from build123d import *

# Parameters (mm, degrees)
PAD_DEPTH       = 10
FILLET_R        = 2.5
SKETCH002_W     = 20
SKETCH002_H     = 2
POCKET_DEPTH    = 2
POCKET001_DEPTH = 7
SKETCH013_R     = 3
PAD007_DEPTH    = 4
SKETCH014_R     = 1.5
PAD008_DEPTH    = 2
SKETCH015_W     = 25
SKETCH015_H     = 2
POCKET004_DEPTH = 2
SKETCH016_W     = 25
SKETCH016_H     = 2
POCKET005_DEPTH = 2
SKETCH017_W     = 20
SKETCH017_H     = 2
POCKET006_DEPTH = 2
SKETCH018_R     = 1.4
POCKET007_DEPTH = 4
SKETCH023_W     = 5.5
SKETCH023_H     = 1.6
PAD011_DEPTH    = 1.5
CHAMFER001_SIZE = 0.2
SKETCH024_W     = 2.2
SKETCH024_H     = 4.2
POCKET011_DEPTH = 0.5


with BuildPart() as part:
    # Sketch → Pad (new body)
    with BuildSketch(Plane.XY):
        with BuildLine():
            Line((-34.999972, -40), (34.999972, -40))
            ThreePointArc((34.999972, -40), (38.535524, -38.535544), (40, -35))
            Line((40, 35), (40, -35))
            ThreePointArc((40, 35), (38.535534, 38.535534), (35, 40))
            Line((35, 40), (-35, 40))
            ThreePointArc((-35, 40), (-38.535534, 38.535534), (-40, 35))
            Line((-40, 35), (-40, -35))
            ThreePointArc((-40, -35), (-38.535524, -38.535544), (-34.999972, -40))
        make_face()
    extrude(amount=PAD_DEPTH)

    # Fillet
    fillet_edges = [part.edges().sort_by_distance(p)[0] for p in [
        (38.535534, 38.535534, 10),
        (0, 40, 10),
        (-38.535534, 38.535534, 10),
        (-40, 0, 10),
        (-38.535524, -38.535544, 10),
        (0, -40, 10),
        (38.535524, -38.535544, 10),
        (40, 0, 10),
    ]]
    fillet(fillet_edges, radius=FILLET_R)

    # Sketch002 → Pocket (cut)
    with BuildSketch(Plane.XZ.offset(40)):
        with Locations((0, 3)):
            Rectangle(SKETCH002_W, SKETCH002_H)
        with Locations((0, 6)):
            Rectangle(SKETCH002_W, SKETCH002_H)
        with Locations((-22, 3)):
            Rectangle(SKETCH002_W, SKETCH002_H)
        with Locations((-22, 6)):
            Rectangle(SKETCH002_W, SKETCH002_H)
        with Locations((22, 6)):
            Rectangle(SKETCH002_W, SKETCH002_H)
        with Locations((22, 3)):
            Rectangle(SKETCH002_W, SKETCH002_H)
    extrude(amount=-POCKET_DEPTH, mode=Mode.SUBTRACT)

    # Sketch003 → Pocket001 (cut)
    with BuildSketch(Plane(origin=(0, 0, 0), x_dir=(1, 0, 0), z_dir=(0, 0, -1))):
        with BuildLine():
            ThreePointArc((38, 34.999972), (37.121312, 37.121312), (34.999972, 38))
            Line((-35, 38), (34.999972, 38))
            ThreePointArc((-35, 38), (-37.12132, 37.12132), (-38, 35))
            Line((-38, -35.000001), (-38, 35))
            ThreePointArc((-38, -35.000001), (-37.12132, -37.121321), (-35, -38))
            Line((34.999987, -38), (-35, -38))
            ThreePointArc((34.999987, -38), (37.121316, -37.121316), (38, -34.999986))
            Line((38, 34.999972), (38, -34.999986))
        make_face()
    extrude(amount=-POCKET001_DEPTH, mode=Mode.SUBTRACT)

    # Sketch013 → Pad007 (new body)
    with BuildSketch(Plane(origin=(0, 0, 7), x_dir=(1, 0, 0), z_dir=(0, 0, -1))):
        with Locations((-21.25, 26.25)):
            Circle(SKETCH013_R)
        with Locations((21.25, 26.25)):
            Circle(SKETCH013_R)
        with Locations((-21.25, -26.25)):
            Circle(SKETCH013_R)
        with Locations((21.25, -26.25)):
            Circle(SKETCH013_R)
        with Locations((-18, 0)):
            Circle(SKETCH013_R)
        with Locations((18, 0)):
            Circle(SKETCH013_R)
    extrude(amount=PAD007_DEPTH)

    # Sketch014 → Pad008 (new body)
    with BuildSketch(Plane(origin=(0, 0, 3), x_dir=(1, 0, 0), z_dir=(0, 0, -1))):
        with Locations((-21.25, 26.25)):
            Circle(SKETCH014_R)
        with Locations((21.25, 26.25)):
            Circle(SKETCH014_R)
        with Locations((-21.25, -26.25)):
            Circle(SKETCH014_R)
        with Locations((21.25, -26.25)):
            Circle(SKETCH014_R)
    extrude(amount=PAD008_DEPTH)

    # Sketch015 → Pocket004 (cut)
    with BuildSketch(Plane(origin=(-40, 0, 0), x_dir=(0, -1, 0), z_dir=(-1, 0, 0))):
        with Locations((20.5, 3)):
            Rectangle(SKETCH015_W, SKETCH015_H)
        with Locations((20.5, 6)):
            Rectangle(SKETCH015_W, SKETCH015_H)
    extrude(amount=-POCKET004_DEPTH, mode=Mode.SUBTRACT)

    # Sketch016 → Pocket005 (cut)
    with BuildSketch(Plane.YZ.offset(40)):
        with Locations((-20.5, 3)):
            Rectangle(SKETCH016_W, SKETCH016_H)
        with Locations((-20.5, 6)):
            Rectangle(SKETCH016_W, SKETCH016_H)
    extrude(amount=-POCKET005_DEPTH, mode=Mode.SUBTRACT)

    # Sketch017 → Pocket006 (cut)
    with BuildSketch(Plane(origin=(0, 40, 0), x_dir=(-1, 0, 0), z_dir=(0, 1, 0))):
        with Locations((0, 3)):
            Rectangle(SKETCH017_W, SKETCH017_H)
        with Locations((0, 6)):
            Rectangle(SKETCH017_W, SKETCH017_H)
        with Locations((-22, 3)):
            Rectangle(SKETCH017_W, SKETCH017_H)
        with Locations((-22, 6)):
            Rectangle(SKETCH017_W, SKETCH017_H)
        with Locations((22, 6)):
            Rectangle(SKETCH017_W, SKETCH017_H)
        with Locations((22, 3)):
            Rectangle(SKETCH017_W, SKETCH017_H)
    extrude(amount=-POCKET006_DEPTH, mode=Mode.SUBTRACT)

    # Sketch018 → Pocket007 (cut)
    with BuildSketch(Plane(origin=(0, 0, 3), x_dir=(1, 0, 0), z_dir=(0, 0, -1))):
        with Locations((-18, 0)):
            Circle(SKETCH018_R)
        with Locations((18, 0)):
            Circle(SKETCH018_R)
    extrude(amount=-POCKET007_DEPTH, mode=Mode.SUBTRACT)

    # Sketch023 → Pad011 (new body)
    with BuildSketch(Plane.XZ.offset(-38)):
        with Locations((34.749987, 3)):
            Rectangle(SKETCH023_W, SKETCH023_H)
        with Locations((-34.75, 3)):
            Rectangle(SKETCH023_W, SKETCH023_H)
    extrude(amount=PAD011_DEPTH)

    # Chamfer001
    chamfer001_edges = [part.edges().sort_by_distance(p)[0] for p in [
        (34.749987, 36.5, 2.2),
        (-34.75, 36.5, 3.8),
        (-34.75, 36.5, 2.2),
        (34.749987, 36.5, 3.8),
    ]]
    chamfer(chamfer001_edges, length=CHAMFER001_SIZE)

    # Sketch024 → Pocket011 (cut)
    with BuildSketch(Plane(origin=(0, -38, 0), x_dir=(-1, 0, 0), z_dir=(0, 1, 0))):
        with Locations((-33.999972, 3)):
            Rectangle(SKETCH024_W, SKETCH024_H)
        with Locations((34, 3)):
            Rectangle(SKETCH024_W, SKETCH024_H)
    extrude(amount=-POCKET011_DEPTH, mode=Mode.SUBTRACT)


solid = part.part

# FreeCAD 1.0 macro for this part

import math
import FreeCAD as App
import Part
import Sketcher

V = App.Vector
Q = App.Units.Quantity


def edges_at(feature, points):
    """Names of the edges that pass closest to the given points."""
    edges = feature.Shape.Edges
    near = lambda p: min(range(len(edges)), key=lambda i: edges[i].distToShape(Part.Vertex(*p))[0])
    return sorted({f"Edge{near(p) + 1}" for p in points})


def add_polygon(sketch, points):
    """Adds a closed chain of lines whose ends are joined by coincident constraints."""
    first, n = sketch.GeometryCount, len(points)
    for a, b in zip(points, points[1:] + points[:1]):
        sketch.addGeometry(Part.LineSegment(App.Vector(*a, 0), App.Vector(*b, 0)), False)
    for i in range(n):
        sketch.addConstraint(Sketcher.Constraint("Coincident", first + i, 2, first + (i + 1) % n, 1))

doc = App.newDocument("Part")
body = doc.addObject("PartDesign::Body", "Body")

# Sketch on XY plane
sketch1 = body.newObject("Sketcher::SketchObject", "Sketch")
sketch1.AttachmentSupport = (doc.getObject("XY_Plane"), [""])
sketch1.MapMode = "FlatFace"
sketch1.addGeometry([
    Part.LineSegment(V(-35, -40, 0), V(35, -40, 0)),  # 0
    Part.ArcOfCircle(Part.Circle(V(35, -35, 0), V(0, 0, 1), 5), math.radians(-90), math.radians(0)),  # 1
    Part.LineSegment(V(40, -35, 0), V(40, 35, 0)),  # 2
    Part.ArcOfCircle(Part.Circle(V(35, 35, 0), V(0, 0, 1), 5), math.radians(0), math.radians(90)),  # 3
    Part.LineSegment(V(35, 40, 0), V(-35, 40, 0)),  # 4
    Part.ArcOfCircle(Part.Circle(V(-35, 35, 0), V(0, 0, 1), 5), math.radians(90), math.radians(180)),  # 5
    Part.LineSegment(V(-40, 35, 0), V(-40, -35, 0)),  # 6
    Part.ArcOfCircle(Part.Circle(V(-35, -35, 0), V(0, 0, 1), 5), math.radians(180), math.radians(270)),  # 7
], False)
sketch1.addConstraint([
    Sketcher.Constraint("Coincident", 0, 2, 1, 1),
    Sketcher.Constraint("Tangent", 1, 2, 2, 1),
    Sketcher.Constraint("Tangent", 2, 2, 3, 1),
    Sketcher.Constraint("Tangent", 3, 2, 4, 1),
    Sketcher.Constraint("Tangent", 4, 2, 5, 1),
    Sketcher.Constraint("Tangent", 5, 2, 6, 1),
    Sketcher.Constraint("Tangent", 6, 2, 7, 1),
    Sketcher.Constraint("Coincident", 7, 2, 0, 1),
    Sketcher.Constraint("Horizontal", 0),
    Sketcher.Constraint("Vertical", 2),
    Sketcher.Constraint("Horizontal", 4),
    Sketcher.Constraint("Vertical", 6),
    Sketcher.Constraint("Equal", 1, 3),
    Sketcher.Constraint("Equal", 3, 5),
    Sketcher.Constraint("Equal", 5, 7),
    Sketcher.Constraint("Symmetric", 1, 3, 5, 3, -1, 1),
    Sketcher.Constraint("Equal", 4, 2),
    Sketcher.Constraint("Radius", 1, Q("5 mm")),
    Sketcher.Constraint("DistanceX", 4, 2, 4, 1, Q("70 mm")),
    Sketcher.Constraint("DistanceX", 0, 1, 0, 2, Q("69.999944 mm")),
    Sketcher.Constraint("DistanceX", 0, 2, 2, 2, Q("5.000028 mm")),
])
pad1 = body.newObject("PartDesign::Pad", "Pad")
pad1.Profile = sketch1
pad1.Length = 10
doc.recompute()

fillet = body.newObject("PartDesign::Fillet", "Fillet")
fillet.Base = (pad1, edges_at(pad1, [
    (38.536, 38.536, 10),
    (0, 40, 10),
    (-38.536, 38.536, 10),
    (-40, 0, 10),
    (-38.536, -38.536, 10),
    (0, -40, 10),
    (38.536, -38.536, 10),
    (40, 0, 10),
]))
fillet.Radius = 2.5

# Sketch on XZ plane
sketch2 = body.newObject("Sketcher::SketchObject", "Sketch001")
sketch2.AttachmentSupport = (doc.getObject("XZ_Plane"), [""])
sketch2.MapMode = "FlatFace"
sketch2.AttachmentOffset = App.Placement(V(0, 0, 40), App.Rotation())
add_polygon(sketch2, [(-10, 4), (-10, 2), (10, 2), (10, 4)])  # lines 0-3
add_polygon(sketch2, [(-10, 7), (-10, 5), (10, 5), (10, 7)])  # lines 4-7
add_polygon(sketch2, [(-32, 4), (-32, 2), (-12, 2), (-12, 4)])  # lines 8-11
add_polygon(sketch2, [(-32, 7), (-32, 5), (-12, 5), (-12, 7)])  # lines 12-15
add_polygon(sketch2, [(12, 7), (12, 5), (32, 5), (32, 7)])  # lines 16-19
add_polygon(sketch2, [(12, 4), (12, 2), (32, 2), (32, 4)])  # lines 20-23
sketch2.addConstraint([
    Sketcher.Constraint("Vertical", 0),
    Sketcher.Constraint("Horizontal", 1),
    Sketcher.Constraint("Vertical", 2),
    Sketcher.Constraint("Horizontal", 3),
    Sketcher.Constraint("Vertical", 4),
    Sketcher.Constraint("Horizontal", 5),
    Sketcher.Constraint("Vertical", 6),
    Sketcher.Constraint("Horizontal", 7),
    Sketcher.Constraint("Vertical", 8),
    Sketcher.Constraint("Horizontal", 9),
    Sketcher.Constraint("Vertical", 10),
    Sketcher.Constraint("Horizontal", 11),
    Sketcher.Constraint("Vertical", 12),
    Sketcher.Constraint("Horizontal", 13),
    Sketcher.Constraint("Vertical", 14),
    Sketcher.Constraint("Horizontal", 15),
    Sketcher.Constraint("Vertical", 16),
    Sketcher.Constraint("Horizontal", 17),
    Sketcher.Constraint("Vertical", 18),
    Sketcher.Constraint("Horizontal", 19),
    Sketcher.Constraint("Vertical", 20),
    Sketcher.Constraint("Horizontal", 21),
    Sketcher.Constraint("Vertical", 22),
    Sketcher.Constraint("Horizontal", 23),
    Sketcher.Constraint("Symmetric", 13, 2, 16, 2, -2),
    Sketcher.Constraint("Symmetric", 15, 2, 18, 2, -2),
    Sketcher.Constraint("Symmetric", 9, 2, 20, 2, -2),
    Sketcher.Constraint("Symmetric", 11, 2, 22, 2, -2),
    Sketcher.Constraint("Horizontal", 1, 2, 8, 2),
    Sketcher.Constraint("Horizontal", 3, 2, 10, 2),
    Sketcher.Constraint("Horizontal", 5, 2, 12, 2),
    Sketcher.Constraint("Horizontal", 7, 2, 14, 2),
    Sketcher.Constraint("Vertical", 3, 2, 4, 2),
    Sketcher.Constraint("Vertical", 2, 2, 5, 2),
    Sketcher.Constraint("Vertical", 11, 2, 12, 2),
    Sketcher.Constraint("Vertical", 10, 2, 13, 2),
    Sketcher.Constraint("Equal", 7, 9),
    Sketcher.Constraint("Equal", 2, 4),
    Sketcher.Constraint("DistanceX", 1, 1, 1, 2, Q("20 mm")),
    Sketcher.Constraint("DistanceY", 0, 2, 0, 1, Q("2 mm")),
    Sketcher.Constraint("DistanceX", 0, 2, -1, 1, Q("10 mm")),
    Sketcher.Constraint("DistanceY", -1, 1, 0, 2, Q("2 mm")),
    Sketcher.Constraint("DistanceY", -1, 1, 4, 2, Q("5 mm")),
    Sketcher.Constraint("DistanceX", 8, 2, -1, 1, Q("32 mm")),
])
pocket1 = body.newObject("PartDesign::Pocket", "Pocket")
pocket1.Profile = sketch2
pocket1.Length = 2

# Sketch on XY plane
sketch3 = body.newObject("Sketcher::SketchObject", "Sketch002")
sketch3.AttachmentSupport = (doc.getObject("XY_Plane"), [""])
sketch3.MapMode = "FlatFace"
sketch3.addGeometry([
    Part.ArcOfCircle(Part.Circle(V(35, -35, 0), V(0, 0, 1), 3), math.radians(-90), math.radians(0)),  # 0
    Part.LineSegment(V(35, -38, 0), V(-35, -38, 0)),  # 1
    Part.ArcOfCircle(Part.Circle(V(-35, -35, 0), V(0, 0, 1), 3), math.radians(-180), math.radians(-90)),  # 2
    Part.LineSegment(V(-38, -35, 0), V(-38, 35, 0)),  # 3
    Part.ArcOfCircle(Part.Circle(V(-35, 35, 0), V(0, 0, 1), 3), math.radians(90), math.radians(180)),  # 4
    Part.LineSegment(V(-35, 38, 0), V(35, 38, 0)),  # 5
    Part.ArcOfCircle(Part.Circle(V(35, 35, 0), V(0, 0, 1), 3), math.radians(0), math.radians(90)),  # 6
    Part.LineSegment(V(38, 35, 0), V(38, -35, 0)),  # 7
], False)
sketch3.addConstraint([
    Sketcher.Constraint("Tangent", 0, 1, 1, 1),
    Sketcher.Constraint("Tangent", 1, 2, 2, 2),
    Sketcher.Constraint("Tangent", 2, 1, 3, 1),
    Sketcher.Constraint("Tangent", 3, 2, 4, 2),
    Sketcher.Constraint("Tangent", 4, 1, 5, 1),
    Sketcher.Constraint("Tangent", 5, 2, 6, 2),
    Sketcher.Constraint("Tangent", 6, 1, 7, 1),
    Sketcher.Constraint("Tangent", 7, 2, 0, 2),
    Sketcher.Constraint("Horizontal", 1),
    Sketcher.Constraint("Vertical", 3),
    Sketcher.Constraint("Horizontal", 5),
    Sketcher.Constraint("Vertical", 7),
    Sketcher.Constraint("Equal", 2, 4),
    Sketcher.Constraint("Radius", 2, Q("3.000001 mm")),
    Sketcher.Constraint("DistanceY", 3, 1, 3, 2, Q("70.000001 mm")),
    Sketcher.Constraint("DistanceX", 2, 3, -1, 1, Q("34.999999 mm")),
    Sketcher.Constraint("DistanceY", 2, 3, -1, 1, Q("34.999999 mm")),
    Sketcher.Constraint("DistanceX", -1, 1, 6, 1, Q("38 mm")),
    Sketcher.Constraint("Radius", 0, Q("3.000028 mm")),
    Sketcher.Constraint("Radius", 6, Q("3.000015 mm")),
])
pocket2 = body.newObject("PartDesign::Pocket", "Pocket001")
pocket2.Profile = sketch3
pocket2.Length = 7
pocket2.Reversed = True

# Sketch on XY plane
sketch4 = body.newObject("Sketcher::SketchObject", "Sketch003")
sketch4.AttachmentSupport = (doc.getObject("XY_Plane"), [""])
sketch4.MapMode = "FlatFace"
sketch4.AttachmentOffset = App.Placement(V(0, 0, 7), App.Rotation())
sketch4.addGeometry([
    Part.Circle(V(-21.2, -26.2, 0), V(0, 0, 1), 3),  # 0
    Part.Circle(V(21.2, -26.2, 0), V(0, 0, 1), 3),  # 1
    Part.Circle(V(-21.2, 26.2, 0), V(0, 0, 1), 3),  # 2
    Part.Circle(V(21.2, 26.2, 0), V(0, 0, 1), 3),  # 3
    Part.Circle(V(-18, 0, 0), V(0, 0, 1), 3),  # 4
    Part.Circle(V(18, 0, 0), V(0, 0, 1), 3),  # 5
], False)
sketch4.addConstraint([
    Sketcher.Constraint("Equal", 0, 1),
    Sketcher.Constraint("Equal", 1, 2),
    Sketcher.Constraint("Equal", 2, 3),
    Sketcher.Constraint("Equal", 3, 4),
    Sketcher.Constraint("Equal", 4, 5),
    Sketcher.Constraint("Symmetric", 1, 3, 2, 3, -1, 1),
    Sketcher.Constraint("Symmetric", 0, 3, 3, 3, -1, 1),
    Sketcher.Constraint("Symmetric", 4, 3, 5, 3, -1, 1),
    Sketcher.Constraint("Symmetric", 0, 3, 1, 3, -2),
    Sketcher.Constraint("PointOnObject", 4, 3, -1),
    Sketcher.Constraint("Diameter", 0, Q("6 mm")),
    Sketcher.Constraint("DistanceX", 4, 3, -1, 1, Q("18 mm")),
    Sketcher.Constraint("DistanceX", 0, 3, 1, 3, Q("42.5 mm")),
    Sketcher.Constraint("DistanceY", 0, 3, 2, 3, Q("52.5 mm")),
])
pad2 = body.newObject("PartDesign::Pad", "Pad001")
pad2.Profile = sketch4
pad2.Length = 4
pad2.Reversed = True

# Sketch on XY plane
sketch5 = body.newObject("Sketcher::SketchObject", "Sketch004")
sketch5.AttachmentSupport = (doc.getObject("XY_Plane"), [""])
sketch5.MapMode = "FlatFace"
sketch5.AttachmentOffset = App.Placement(V(0, 0, 3), App.Rotation())
sketch5.addGeometry([
    Part.Circle(V(-21.2, -26.2, 0), V(0, 0, 1), 1.5),
    Part.Circle(V(21.2, -26.2, 0), V(0, 0, 1), 1.5),
    Part.Circle(V(-21.2, 26.2, 0), V(0, 0, 1), 1.5),
    Part.Circle(V(21.2, 26.2, 0), V(0, 0, 1), 1.5),
], False)
sketch5.addConstraint([
    Sketcher.Constraint("Equal", 0, 1),
    Sketcher.Constraint("Equal", 1, 2),
    Sketcher.Constraint("Equal", 2, 3),
    Sketcher.Constraint("Symmetric", 1, 3, 2, 3, -1, 1),
    Sketcher.Constraint("Symmetric", 0, 3, 3, 3, -1, 1),
    Sketcher.Constraint("Symmetric", 0, 3, 1, 3, -2),
    Sketcher.Constraint("Diameter", 0, Q("3 mm")),
    Sketcher.Constraint("DistanceX", 0, 3, 1, 3, Q("42.5 mm")),
    Sketcher.Constraint("DistanceY", 0, 3, 2, 3, Q("52.5 mm")),
])
pad3 = body.newObject("PartDesign::Pad", "Pad002")
pad3.Profile = sketch5
pad3.Length = 2
pad3.Reversed = True

# Sketch on YZ plane
sketch6 = body.newObject("Sketcher::SketchObject", "Sketch005")
sketch6.AttachmentSupport = (doc.getObject("YZ_Plane"), [""])
sketch6.MapMode = "FlatFace"
sketch6.AttachmentOffset = App.Placement(V(0, 0, -40), App.Rotation())
add_polygon(sketch6, [(-8, 4), (-8, 2), (-33, 2), (-33, 4)])  # lines 0-3
add_polygon(sketch6, [(-8, 7), (-8, 5), (-33, 5), (-33, 7)])  # lines 4-7
sketch6.addConstraint([
    Sketcher.Constraint("Vertical", 0),
    Sketcher.Constraint("Horizontal", 1),
    Sketcher.Constraint("Vertical", 2),
    Sketcher.Constraint("Horizontal", 3),
    Sketcher.Constraint("Vertical", 4),
    Sketcher.Constraint("Horizontal", 5),
    Sketcher.Constraint("Vertical", 6),
    Sketcher.Constraint("Horizontal", 7),
    Sketcher.Constraint("Vertical", 3, 2, 4, 2),
    Sketcher.Constraint("Vertical", 2, 2, 5, 2),
    Sketcher.Constraint("Equal", 2, 4),
    Sketcher.Constraint("DistanceX", 1, 2, 1, 1, Q("25 mm")),
    Sketcher.Constraint("DistanceY", 0, 2, 0, 1, Q("2 mm")),
    Sketcher.Constraint("DistanceX", 0, 2, -1, 1, Q("8 mm")),
    Sketcher.Constraint("DistanceY", -1, 1, 0, 2, Q("2 mm")),
    Sketcher.Constraint("DistanceY", -1, 1, 4, 2, Q("5 mm")),
])
pocket3 = body.newObject("PartDesign::Pocket", "Pocket002")
pocket3.Profile = sketch6
pocket3.Length = 2
pocket3.Reversed = True

# Sketch on YZ plane
sketch7 = body.newObject("Sketcher::SketchObject", "Sketch006")
sketch7.AttachmentSupport = (doc.getObject("YZ_Plane"), [""])
sketch7.MapMode = "FlatFace"
sketch7.AttachmentOffset = App.Placement(V(0, 0, 40), App.Rotation())
add_polygon(sketch7, [(-33, 4), (-33, 2), (-8, 2), (-8, 4)])  # lines 0-3
add_polygon(sketch7, [(-33, 7), (-33, 5), (-8, 5), (-8, 7)])  # lines 4-7
sketch7.addConstraint([
    Sketcher.Constraint("Vertical", 0),
    Sketcher.Constraint("Horizontal", 1),
    Sketcher.Constraint("Vertical", 2),
    Sketcher.Constraint("Horizontal", 3),
    Sketcher.Constraint("Vertical", 4),
    Sketcher.Constraint("Horizontal", 5),
    Sketcher.Constraint("Vertical", 6),
    Sketcher.Constraint("Horizontal", 7),
    Sketcher.Constraint("Vertical", 3, 2, 4, 2),
    Sketcher.Constraint("Vertical", 2, 2, 5, 2),
    Sketcher.Constraint("Equal", 2, 4),
    Sketcher.Constraint("DistanceX", 1, 1, 1, 2, Q("25 mm")),
    Sketcher.Constraint("DistanceY", 0, 2, 0, 1, Q("2 mm")),
    Sketcher.Constraint("DistanceX", 0, 2, -1, 1, Q("33 mm")),
    Sketcher.Constraint("DistanceY", -1, 1, 0, 2, Q("2 mm")),
    Sketcher.Constraint("DistanceY", -1, 1, 4, 2, Q("5 mm")),
])
pocket4 = body.newObject("PartDesign::Pocket", "Pocket003")
pocket4.Profile = sketch7
pocket4.Length = 2

# Sketch on XZ plane
sketch8 = body.newObject("Sketcher::SketchObject", "Sketch007")
sketch8.AttachmentSupport = (doc.getObject("XZ_Plane"), [""])
sketch8.MapMode = "FlatFace"
sketch8.AttachmentOffset = App.Placement(V(0, 0, -40), App.Rotation())
add_polygon(sketch8, [(10, 4), (10, 2), (-10, 2), (-10, 4)])  # lines 0-3
add_polygon(sketch8, [(10, 7), (10, 5), (-10, 5), (-10, 7)])  # lines 4-7
add_polygon(sketch8, [(32, 4), (32, 2), (12, 2), (12, 4)])  # lines 8-11
add_polygon(sketch8, [(32, 7), (32, 5), (12, 5), (12, 7)])  # lines 12-15
add_polygon(sketch8, [(-12, 7), (-12, 5), (-32, 5), (-32, 7)])  # lines 16-19
add_polygon(sketch8, [(-12, 4), (-12, 2), (-32, 2), (-32, 4)])  # lines 20-23
sketch8.addConstraint([
    Sketcher.Constraint("Vertical", 0),
    Sketcher.Constraint("Horizontal", 1),
    Sketcher.Constraint("Vertical", 2),
    Sketcher.Constraint("Horizontal", 3),
    Sketcher.Constraint("Vertical", 4),
    Sketcher.Constraint("Horizontal", 5),
    Sketcher.Constraint("Vertical", 6),
    Sketcher.Constraint("Horizontal", 7),
    Sketcher.Constraint("Vertical", 8),
    Sketcher.Constraint("Horizontal", 9),
    Sketcher.Constraint("Vertical", 10),
    Sketcher.Constraint("Horizontal", 11),
    Sketcher.Constraint("Vertical", 12),
    Sketcher.Constraint("Horizontal", 13),
    Sketcher.Constraint("Vertical", 14),
    Sketcher.Constraint("Horizontal", 15),
    Sketcher.Constraint("Vertical", 16),
    Sketcher.Constraint("Horizontal", 17),
    Sketcher.Constraint("Vertical", 18),
    Sketcher.Constraint("Horizontal", 19),
    Sketcher.Constraint("Vertical", 20),
    Sketcher.Constraint("Horizontal", 21),
    Sketcher.Constraint("Vertical", 22),
    Sketcher.Constraint("Horizontal", 23),
    Sketcher.Constraint("Symmetric", 13, 2, 16, 2, -2),
    Sketcher.Constraint("Symmetric", 15, 2, 18, 2, -2),
    Sketcher.Constraint("Symmetric", 9, 2, 20, 2, -2),
    Sketcher.Constraint("Symmetric", 11, 2, 22, 2, -2),
    Sketcher.Constraint("Horizontal", 1, 2, 8, 2),
    Sketcher.Constraint("Horizontal", 3, 2, 10, 2),
    Sketcher.Constraint("Horizontal", 5, 2, 12, 2),
    Sketcher.Constraint("Horizontal", 7, 2, 14, 2),
    Sketcher.Constraint("Vertical", 3, 2, 4, 2),
    Sketcher.Constraint("Vertical", 2, 2, 5, 2),
    Sketcher.Constraint("Vertical", 11, 2, 12, 2),
    Sketcher.Constraint("Vertical", 10, 2, 13, 2),
    Sketcher.Constraint("Equal", 7, 9),
    Sketcher.Constraint("Equal", 2, 4),
    Sketcher.Constraint("DistanceX", 1, 2, 1, 1, Q("20 mm")),
    Sketcher.Constraint("DistanceY", 0, 2, 0, 1, Q("2 mm")),
    Sketcher.Constraint("DistanceX", -1, 1, 0, 2, Q("10 mm")),
    Sketcher.Constraint("DistanceY", -1, 1, 0, 2, Q("2 mm")),
    Sketcher.Constraint("DistanceY", -1, 1, 4, 2, Q("5 mm")),
    Sketcher.Constraint("DistanceX", -1, 1, 8, 2, Q("32 mm")),
])
pocket5 = body.newObject("PartDesign::Pocket", "Pocket004")
pocket5.Profile = sketch8
pocket5.Length = 2
pocket5.Reversed = True

# Sketch on XY plane
sketch9 = body.newObject("Sketcher::SketchObject", "Sketch008")
sketch9.AttachmentSupport = (doc.getObject("XY_Plane"), [""])
sketch9.MapMode = "FlatFace"
sketch9.AttachmentOffset = App.Placement(V(0, 0, 3), App.Rotation())
sketch9.addGeometry([
    Part.Circle(V(-18, 0, 0), V(0, 0, 1), 1.4),
    Part.Circle(V(18, 0, 0), V(0, 0, 1), 1.4),
], False)
sketch9.addConstraint([
    Sketcher.Constraint("Equal", 0, 1),
    Sketcher.Constraint("Symmetric", 0, 3, 1, 3, -1, 1),
    Sketcher.Constraint("PointOnObject", 0, 3, -1),
    Sketcher.Constraint("Diameter", 0, Q("2.8 mm")),
    Sketcher.Constraint("DistanceX", 0, 3, -1, 1, Q("18 mm")),
])
pocket6 = body.newObject("PartDesign::Pocket", "Pocket005")
pocket6.Profile = sketch9
pocket6.Length = 4
pocket6.Reversed = True

# Sketch on XZ plane
sketch10 = body.newObject("Sketcher::SketchObject", "Sketch009")
sketch10.AttachmentSupport = (doc.getObject("XZ_Plane"), [""])
sketch10.MapMode = "FlatFace"
sketch10.AttachmentOffset = App.Placement(V(0, 0, -38), App.Rotation())
add_polygon(sketch10, [(32, 3.8), (32, 2.2), (37.5, 2.2), (37.5, 3.8)])  # lines 0-3
add_polygon(sketch10, [(-37.5, 3.8), (-37.5, 2.2), (-32, 2.2), (-32, 3.8)])  # lines 4-7
sketch10.addConstraint([
    Sketcher.Constraint("Vertical", 0),
    Sketcher.Constraint("Horizontal", 1),
    Sketcher.Constraint("Vertical", 2),
    Sketcher.Constraint("Horizontal", 3),
    Sketcher.Constraint("Vertical", 4),
    Sketcher.Constraint("Horizontal", 5),
    Sketcher.Constraint("Vertical", 6),
    Sketcher.Constraint("Horizontal", 7),
    Sketcher.Constraint("Horizontal", 1, 2, 4, 2),
    Sketcher.Constraint("Horizontal", 3, 2, 6, 2),
    Sketcher.Constraint("Equal", 3, 5),
    Sketcher.Constraint("DistanceX", 1, 1, 1, 2, Q("5.5 mm")),
    Sketcher.Constraint("DistanceY", 0, 2, 0, 1, Q("1.6 mm")),
    Sketcher.Constraint("DistanceX", 5, 2, -1, 1, Q("32 mm")),
    Sketcher.Constraint("DistanceY", -1, 1, 0, 2, Q("2.2 mm")),
    Sketcher.Constraint("DistanceX", -1, 1, 0, 2, Q("31.999987 mm")),
])
pad4 = body.newObject("PartDesign::Pad", "Pad003")
pad4.Profile = sketch10
pad4.Length = 1.5
doc.recompute()

chamfer = body.newObject("PartDesign::Chamfer", "Chamfer")
chamfer.Base = (pad4, edges_at(pad4, [
    (34.75, 36.5, 2.2),
    (-34.75, 36.5, 3.8),
    (-34.75, 36.5, 2.2),
    (34.75, 36.5, 3.8),
]))
chamfer.Size = 0.2

# Sketch on XZ plane
sketch11 = body.newObject("Sketcher::SketchObject", "Sketch010")
sketch11.AttachmentSupport = (doc.getObject("XZ_Plane"), [""])
sketch11.MapMode = "FlatFace"
sketch11.AttachmentOffset = App.Placement(V(0, 0, 38), App.Rotation())
add_polygon(sketch11, [(35.099972, 5.1), (35.099972, 0.9), (32.899972, 0.9), (32.899972, 5.1)])  # lines 0-3
add_polygon(sketch11, [(-32.9, 5.1), (-32.9, 0.9), (-35.1, 0.9), (-35.1, 5.1)])  # lines 4-7
sketch11.addConstraint([
    Sketcher.Constraint("Vertical", 0),
    Sketcher.Constraint("Horizontal", 1),
    Sketcher.Constraint("Vertical", 2),
    Sketcher.Constraint("Horizontal", 3),
    Sketcher.Constraint("Vertical", 4),
    Sketcher.Constraint("Horizontal", 5),
    Sketcher.Constraint("Vertical", 6),
    Sketcher.Constraint("Horizontal", 7),
    Sketcher.Constraint("Horizontal", 1, 2, 4, 2),
    Sketcher.Constraint("Horizontal", 3, 2, 6, 2),
    Sketcher.Constraint("Equal", 3, 5),
    Sketcher.Constraint("DistanceX", 1, 2, 1, 1, Q("2.2 mm")),
    Sketcher.Constraint("DistanceY", 0, 2, 0, 1, Q("4.2 mm")),
    Sketcher.Constraint("DistanceY", -1, 1, 0, 2, Q("0.9 mm")),
    Sketcher.Constraint("DistanceX", 4, 2, -1, 1, Q("32.9 mm")),
    Sketcher.Constraint("DistanceX", -1, 1, 1, 2, Q("32.899972 mm")),
])
pocket7 = body.newObject("PartDesign::Pocket", "Pocket006")
pocket7.Profile = sketch11
pocket7.Length = 0.5
pocket7.Reversed = True

doc.recompute()
